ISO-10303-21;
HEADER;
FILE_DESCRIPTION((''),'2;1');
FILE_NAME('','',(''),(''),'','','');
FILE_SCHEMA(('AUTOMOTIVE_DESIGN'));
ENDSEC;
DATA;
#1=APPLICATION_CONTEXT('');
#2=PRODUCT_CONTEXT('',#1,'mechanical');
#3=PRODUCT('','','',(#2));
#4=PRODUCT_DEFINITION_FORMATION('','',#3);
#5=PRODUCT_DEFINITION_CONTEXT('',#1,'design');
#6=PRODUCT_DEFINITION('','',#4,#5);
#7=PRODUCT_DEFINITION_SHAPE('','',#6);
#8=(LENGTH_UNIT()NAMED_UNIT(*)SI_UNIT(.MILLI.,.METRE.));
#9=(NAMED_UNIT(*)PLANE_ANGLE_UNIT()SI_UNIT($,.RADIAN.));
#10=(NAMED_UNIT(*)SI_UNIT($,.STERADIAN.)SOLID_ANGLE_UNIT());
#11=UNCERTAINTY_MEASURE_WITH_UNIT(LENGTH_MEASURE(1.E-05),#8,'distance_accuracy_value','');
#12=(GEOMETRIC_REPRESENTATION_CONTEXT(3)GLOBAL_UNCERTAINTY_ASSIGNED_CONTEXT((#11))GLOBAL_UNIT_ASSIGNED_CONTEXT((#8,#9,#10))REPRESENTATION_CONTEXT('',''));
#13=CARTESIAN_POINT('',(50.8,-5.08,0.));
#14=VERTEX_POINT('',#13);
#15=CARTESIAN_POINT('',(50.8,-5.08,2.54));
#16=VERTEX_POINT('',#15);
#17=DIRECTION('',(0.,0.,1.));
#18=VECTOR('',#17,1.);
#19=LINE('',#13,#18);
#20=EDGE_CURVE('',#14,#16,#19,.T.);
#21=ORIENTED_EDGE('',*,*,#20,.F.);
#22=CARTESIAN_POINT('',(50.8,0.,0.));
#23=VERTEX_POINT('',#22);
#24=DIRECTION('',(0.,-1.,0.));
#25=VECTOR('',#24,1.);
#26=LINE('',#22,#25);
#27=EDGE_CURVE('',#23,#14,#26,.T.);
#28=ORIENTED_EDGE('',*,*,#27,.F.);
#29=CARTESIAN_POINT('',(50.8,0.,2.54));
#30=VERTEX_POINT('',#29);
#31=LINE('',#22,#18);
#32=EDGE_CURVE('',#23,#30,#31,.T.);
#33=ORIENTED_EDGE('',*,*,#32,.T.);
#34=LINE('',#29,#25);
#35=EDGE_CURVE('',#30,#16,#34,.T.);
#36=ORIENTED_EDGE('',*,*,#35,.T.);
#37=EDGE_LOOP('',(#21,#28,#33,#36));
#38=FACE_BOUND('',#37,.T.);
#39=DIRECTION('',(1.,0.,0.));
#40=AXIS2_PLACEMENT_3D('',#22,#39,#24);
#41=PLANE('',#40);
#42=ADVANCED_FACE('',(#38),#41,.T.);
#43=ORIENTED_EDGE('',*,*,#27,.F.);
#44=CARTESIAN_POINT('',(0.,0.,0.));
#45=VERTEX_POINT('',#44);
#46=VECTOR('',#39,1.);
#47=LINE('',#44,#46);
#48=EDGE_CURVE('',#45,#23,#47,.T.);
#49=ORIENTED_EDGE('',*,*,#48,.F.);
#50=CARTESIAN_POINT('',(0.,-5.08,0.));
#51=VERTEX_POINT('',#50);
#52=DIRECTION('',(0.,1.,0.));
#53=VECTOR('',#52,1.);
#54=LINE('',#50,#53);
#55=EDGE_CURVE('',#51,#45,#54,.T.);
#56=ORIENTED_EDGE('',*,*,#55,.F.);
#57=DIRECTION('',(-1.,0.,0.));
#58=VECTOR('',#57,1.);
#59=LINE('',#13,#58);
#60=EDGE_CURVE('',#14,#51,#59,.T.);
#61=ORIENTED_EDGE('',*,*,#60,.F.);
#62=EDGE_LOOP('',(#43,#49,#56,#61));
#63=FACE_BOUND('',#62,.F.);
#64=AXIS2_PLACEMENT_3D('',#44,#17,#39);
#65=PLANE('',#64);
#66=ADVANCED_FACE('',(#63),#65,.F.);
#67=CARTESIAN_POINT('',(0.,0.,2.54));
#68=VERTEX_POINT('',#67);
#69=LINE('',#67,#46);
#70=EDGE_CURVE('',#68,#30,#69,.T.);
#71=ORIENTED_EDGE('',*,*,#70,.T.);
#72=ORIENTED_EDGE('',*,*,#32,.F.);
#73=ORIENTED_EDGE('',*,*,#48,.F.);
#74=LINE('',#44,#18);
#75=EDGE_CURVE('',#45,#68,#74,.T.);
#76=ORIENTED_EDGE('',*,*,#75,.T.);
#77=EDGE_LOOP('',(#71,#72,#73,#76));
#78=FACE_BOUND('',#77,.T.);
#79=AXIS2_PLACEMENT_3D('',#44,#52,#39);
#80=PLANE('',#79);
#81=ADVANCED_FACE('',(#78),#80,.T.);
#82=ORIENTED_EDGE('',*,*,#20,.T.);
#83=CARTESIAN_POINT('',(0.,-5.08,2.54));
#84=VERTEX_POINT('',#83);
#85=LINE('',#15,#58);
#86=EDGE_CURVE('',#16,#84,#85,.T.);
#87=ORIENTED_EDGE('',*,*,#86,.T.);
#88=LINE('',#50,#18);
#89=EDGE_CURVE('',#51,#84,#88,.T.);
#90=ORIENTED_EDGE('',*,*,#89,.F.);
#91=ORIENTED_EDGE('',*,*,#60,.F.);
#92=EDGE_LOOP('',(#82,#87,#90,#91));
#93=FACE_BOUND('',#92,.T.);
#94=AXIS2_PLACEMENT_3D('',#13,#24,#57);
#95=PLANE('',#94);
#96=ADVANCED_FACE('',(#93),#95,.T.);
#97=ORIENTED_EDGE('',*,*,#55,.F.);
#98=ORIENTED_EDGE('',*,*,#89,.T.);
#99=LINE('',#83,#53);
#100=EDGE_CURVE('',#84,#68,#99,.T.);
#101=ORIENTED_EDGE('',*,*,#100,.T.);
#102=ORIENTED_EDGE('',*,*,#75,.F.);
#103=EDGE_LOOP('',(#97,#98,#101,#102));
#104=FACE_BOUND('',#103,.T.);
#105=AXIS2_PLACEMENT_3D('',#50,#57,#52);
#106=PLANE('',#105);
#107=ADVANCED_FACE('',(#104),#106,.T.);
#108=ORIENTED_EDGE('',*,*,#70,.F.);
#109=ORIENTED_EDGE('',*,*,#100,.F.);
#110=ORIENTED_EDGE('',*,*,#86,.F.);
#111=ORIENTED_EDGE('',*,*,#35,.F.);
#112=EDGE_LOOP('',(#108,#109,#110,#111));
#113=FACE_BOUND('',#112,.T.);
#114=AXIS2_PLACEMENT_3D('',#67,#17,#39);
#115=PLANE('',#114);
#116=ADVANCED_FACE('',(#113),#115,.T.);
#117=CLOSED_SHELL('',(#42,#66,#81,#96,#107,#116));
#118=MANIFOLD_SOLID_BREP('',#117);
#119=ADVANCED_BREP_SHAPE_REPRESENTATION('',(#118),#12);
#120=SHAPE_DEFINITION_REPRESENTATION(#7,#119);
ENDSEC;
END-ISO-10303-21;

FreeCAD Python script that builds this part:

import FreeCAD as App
import Part
import Sketcher
Q = App.Units.Quantity


def add_polygon(sketch, points):
    """Adds a closed chain of lines whose ends are joined by coincident constraints."""
    first, n = sketch.GeometryCount, len(points)
    for a, b in zip(points, points[1:] + points[:1]):
        sketch.addGeometry(Part.LineSegment(App.Vector(*a, 0), App.Vector(*b, 0)), False)
    for i in range(n):
        sketch.addConstraint(Sketcher.Constraint("Coincident", first + i, 2, first + (i + 1) % n, 1))

doc = App.newDocument("Part")
body = doc.addObject("PartDesign::Body", "Body")

sketch1 = doc.addObject("Sketcher::SketchObject", "Sketch")
body.addObject(sketch1)
sketch1.AttachmentSupport = (doc.XY_Plane, [""])
sketch1.MapMode = "FlatFace"
add_polygon(sketch1, [(51, 0), (0, 0), (0, -5), (51, -5)])
sketch1.addConstraint([
    Sketcher.Constraint("Horizontal", 0),
    Sketcher.Constraint("Vertical", 1),
    Sketcher.Constraint("Horizontal", 2),
    Sketcher.Constraint("Vertical", 3),
    Sketcher.Constraint("Coincident", 0, 2, -1, 1),
    Sketcher.Constraint("DistanceX", 0, 2, 0, 1, Q("2 in")),
    Sketcher.Constraint("DistanceY", 1, 2, 1, 1, Q("0.2 in")),
])
pad1 = doc.addObject("PartDesign::Pad", "Pad")
body.addObject(pad1)
pad1.Profile = sketch1
pad1.Length = Q("0.1 in")

doc.recompute()
